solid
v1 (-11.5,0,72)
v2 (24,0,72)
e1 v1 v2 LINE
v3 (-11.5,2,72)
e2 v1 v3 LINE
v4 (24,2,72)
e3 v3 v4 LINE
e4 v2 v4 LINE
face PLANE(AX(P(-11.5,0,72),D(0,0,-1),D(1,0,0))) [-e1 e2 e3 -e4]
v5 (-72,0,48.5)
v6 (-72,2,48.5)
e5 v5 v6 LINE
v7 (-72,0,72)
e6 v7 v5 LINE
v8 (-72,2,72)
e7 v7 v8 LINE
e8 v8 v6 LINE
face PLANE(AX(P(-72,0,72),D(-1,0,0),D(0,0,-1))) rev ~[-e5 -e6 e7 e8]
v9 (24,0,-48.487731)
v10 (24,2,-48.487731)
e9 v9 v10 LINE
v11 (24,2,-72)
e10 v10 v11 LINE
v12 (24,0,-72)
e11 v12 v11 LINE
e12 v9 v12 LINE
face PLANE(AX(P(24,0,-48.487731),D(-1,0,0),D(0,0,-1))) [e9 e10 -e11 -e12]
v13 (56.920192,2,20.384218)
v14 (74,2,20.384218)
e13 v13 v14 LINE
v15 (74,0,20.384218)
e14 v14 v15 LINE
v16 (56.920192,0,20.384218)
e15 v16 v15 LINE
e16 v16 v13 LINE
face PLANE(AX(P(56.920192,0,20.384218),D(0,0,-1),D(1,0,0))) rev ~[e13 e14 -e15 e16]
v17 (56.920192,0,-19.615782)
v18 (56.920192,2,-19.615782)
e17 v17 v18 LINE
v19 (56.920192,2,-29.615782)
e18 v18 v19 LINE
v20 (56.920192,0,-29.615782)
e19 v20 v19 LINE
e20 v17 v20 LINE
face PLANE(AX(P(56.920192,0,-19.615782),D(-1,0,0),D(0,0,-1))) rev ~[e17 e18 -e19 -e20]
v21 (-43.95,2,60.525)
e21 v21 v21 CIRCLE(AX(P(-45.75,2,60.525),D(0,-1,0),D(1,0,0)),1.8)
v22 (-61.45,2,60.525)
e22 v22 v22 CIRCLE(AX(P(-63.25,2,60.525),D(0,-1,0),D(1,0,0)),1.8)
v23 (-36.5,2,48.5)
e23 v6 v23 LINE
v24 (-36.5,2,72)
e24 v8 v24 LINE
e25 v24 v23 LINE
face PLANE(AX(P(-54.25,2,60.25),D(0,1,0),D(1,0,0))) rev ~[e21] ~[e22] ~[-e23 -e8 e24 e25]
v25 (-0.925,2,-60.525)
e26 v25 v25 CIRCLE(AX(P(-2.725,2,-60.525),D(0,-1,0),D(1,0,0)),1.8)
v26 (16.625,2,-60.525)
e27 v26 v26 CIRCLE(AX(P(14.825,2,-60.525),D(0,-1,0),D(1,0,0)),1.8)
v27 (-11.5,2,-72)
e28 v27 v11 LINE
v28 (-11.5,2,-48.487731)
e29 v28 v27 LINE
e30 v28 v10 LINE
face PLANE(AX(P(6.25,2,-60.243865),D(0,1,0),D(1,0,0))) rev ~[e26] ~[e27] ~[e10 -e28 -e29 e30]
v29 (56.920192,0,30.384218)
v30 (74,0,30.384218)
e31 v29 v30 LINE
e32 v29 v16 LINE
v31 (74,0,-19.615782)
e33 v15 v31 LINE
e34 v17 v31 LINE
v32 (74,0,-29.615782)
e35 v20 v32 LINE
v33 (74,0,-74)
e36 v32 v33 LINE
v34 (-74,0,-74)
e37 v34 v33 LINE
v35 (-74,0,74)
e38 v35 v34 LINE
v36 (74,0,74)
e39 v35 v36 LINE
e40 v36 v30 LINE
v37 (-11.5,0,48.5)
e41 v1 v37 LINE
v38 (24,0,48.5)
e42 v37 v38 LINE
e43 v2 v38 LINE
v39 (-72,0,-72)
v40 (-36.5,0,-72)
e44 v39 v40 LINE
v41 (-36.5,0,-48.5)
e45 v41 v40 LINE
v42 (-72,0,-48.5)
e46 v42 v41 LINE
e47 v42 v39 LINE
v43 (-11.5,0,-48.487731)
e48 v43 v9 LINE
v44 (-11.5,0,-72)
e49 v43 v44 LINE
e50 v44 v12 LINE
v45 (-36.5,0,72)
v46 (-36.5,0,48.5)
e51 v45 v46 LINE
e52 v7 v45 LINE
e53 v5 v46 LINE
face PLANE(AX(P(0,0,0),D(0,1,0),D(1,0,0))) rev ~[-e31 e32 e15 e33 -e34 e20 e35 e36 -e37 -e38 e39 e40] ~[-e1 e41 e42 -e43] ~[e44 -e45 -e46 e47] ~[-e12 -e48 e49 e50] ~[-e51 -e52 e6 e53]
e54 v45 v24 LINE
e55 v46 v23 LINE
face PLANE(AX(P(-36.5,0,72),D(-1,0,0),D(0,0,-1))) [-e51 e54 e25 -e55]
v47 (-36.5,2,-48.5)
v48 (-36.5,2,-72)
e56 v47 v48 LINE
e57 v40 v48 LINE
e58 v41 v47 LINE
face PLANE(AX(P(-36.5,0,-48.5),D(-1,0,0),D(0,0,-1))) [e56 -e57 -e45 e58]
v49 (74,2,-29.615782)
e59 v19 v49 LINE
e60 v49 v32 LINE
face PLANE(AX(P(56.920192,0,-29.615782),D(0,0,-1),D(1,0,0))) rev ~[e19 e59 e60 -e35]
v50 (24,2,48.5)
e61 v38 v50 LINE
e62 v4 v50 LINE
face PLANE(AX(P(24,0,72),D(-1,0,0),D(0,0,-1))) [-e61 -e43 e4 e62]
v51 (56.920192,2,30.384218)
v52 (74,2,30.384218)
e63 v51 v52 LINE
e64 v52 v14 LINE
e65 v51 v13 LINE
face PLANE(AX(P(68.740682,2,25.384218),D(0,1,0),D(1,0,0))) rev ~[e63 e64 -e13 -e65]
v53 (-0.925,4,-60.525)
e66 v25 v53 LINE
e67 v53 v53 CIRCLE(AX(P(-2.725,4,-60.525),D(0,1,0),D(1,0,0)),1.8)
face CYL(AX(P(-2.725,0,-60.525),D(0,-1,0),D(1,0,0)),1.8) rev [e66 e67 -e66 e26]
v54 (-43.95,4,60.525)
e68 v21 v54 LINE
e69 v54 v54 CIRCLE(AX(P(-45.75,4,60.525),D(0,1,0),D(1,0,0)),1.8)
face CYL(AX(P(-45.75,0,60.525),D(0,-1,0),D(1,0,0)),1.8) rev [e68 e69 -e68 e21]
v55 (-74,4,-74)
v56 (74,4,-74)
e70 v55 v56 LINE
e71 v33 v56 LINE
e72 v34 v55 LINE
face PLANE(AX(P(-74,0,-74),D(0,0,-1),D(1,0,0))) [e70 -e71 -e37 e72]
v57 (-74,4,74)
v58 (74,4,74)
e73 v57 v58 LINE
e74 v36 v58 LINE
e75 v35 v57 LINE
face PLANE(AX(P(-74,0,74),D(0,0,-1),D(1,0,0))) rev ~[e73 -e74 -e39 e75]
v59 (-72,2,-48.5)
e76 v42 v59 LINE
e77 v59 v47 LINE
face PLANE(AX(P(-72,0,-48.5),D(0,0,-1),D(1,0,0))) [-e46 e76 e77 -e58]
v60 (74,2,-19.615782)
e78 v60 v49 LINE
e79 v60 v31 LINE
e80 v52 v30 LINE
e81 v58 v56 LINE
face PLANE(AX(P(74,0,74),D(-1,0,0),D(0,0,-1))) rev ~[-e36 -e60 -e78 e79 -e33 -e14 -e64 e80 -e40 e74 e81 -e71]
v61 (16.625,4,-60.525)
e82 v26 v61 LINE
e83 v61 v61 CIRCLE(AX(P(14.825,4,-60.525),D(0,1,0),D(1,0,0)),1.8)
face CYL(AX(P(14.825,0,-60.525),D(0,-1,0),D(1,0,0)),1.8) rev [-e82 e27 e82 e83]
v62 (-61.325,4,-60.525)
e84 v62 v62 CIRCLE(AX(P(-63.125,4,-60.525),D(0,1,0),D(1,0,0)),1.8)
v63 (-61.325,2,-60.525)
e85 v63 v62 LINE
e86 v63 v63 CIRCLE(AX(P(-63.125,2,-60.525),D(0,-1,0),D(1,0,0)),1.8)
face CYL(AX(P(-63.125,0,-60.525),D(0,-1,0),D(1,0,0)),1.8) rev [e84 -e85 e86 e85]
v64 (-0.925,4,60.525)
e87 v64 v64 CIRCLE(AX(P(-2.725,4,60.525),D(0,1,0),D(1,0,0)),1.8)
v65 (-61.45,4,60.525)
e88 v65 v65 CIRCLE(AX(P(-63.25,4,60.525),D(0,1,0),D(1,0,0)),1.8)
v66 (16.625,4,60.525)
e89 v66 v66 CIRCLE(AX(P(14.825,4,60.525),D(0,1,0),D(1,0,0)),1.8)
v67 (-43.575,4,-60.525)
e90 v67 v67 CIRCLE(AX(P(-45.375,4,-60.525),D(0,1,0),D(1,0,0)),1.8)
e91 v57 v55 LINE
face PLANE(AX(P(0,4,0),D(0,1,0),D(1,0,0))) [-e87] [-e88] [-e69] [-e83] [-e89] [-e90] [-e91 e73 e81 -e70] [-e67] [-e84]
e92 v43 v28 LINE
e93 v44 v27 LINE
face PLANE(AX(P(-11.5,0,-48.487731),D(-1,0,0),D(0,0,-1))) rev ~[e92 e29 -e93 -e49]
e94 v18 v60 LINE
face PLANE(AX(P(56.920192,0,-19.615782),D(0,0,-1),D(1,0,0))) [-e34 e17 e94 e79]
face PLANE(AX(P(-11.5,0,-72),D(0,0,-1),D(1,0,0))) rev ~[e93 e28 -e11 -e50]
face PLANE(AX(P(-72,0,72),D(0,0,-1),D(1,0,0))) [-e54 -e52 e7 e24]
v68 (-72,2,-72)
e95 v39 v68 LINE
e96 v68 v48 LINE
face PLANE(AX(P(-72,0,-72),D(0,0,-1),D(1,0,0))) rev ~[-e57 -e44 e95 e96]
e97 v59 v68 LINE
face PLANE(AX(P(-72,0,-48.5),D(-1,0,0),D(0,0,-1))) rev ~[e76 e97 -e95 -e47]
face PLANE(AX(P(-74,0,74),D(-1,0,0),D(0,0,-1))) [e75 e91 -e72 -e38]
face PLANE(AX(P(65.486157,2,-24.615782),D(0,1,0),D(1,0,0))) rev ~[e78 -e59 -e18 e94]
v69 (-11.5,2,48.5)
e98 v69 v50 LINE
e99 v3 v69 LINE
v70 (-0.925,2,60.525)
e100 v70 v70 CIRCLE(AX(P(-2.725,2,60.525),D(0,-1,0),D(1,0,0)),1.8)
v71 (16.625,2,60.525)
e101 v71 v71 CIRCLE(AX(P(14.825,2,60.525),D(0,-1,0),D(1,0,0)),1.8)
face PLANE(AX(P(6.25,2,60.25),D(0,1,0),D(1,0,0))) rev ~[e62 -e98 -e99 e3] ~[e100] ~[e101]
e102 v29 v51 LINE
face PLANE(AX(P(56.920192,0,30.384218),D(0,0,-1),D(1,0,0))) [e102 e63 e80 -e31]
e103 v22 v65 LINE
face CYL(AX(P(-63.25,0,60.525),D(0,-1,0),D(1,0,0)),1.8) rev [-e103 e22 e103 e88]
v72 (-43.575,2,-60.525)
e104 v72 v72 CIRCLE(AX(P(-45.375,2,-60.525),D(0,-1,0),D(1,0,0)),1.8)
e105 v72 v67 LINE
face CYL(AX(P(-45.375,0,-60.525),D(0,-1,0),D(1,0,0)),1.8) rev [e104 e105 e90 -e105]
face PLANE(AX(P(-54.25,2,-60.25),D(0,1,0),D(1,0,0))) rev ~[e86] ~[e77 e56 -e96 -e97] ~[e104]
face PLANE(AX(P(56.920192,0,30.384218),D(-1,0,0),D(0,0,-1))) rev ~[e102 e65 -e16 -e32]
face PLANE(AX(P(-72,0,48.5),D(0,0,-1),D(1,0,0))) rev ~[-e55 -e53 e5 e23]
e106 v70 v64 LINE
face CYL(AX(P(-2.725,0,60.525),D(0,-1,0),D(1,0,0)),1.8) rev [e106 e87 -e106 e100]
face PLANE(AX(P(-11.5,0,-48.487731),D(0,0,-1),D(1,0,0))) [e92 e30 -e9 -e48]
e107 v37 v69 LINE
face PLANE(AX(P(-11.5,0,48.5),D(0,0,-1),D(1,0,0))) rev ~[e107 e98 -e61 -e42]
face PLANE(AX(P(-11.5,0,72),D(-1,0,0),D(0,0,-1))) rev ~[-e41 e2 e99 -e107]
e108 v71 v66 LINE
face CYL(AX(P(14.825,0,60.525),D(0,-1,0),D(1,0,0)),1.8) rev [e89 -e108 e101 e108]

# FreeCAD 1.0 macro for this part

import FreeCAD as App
import Part
import Sketcher
from FreeCAD import Vector

doc = App.newDocument("Part")
body = doc.addObject("PartDesign::Body", "Body")

# Sketch on XZ plane
sketch1 = body.newObject("Sketcher::SketchObject", "Sketch")
sketch1.AttachmentSupport = (doc.getObject("XZ_Plane"), [""])
sketch1.MapMode = "FlatFace"
sketch1.addGeometry([
    Part.LineSegment(Vector(-74, -74, 0), Vector(-74, 74, 0)),
    Part.LineSegment(Vector(-74, 74, 0), Vector(74, 74, 0)),
    Part.LineSegment(Vector(74, 74, 0), Vector(74, -74, 0)),
    Part.LineSegment(Vector(74, -74, 0), Vector(-74, -74, 0)),
], False)
sketch1.addConstraint([
    Sketcher.Constraint("Coincident", 0, 2, 1, 1),
    Sketcher.Constraint("Coincident", 1, 2, 2, 1),
    Sketcher.Constraint("Coincident", 2, 2, 3, 1),
    Sketcher.Constraint("Coincident", 3, 2, 0, 1),
    Sketcher.Constraint("Vertical", 0),
    Sketcher.Constraint("Horizontal", 1),
    Sketcher.Constraint("Vertical", 2),
    Sketcher.Constraint("Horizontal", 3),
    Sketcher.Constraint("Symmetric", 0, 2, 2, 2, -1, 1),
    Sketcher.Constraint("Equal", 3, 0),
    Sketcher.Constraint("DistanceX", 1, 1, 1, 2, 148.0),
])
pad1 = body.newObject("PartDesign::Pad", "Pad")
pad1.Profile = sketch1
pad1.Length = 4
pad1.Reversed = True

# Sketch on XZ plane
sketch2 = body.newObject("Sketcher::SketchObject", "Sketch001")
sketch2.AttachmentSupport = (doc.getObject("XZ_Plane"), [""])
sketch2.MapMode = "FlatFace"
sketch2.addGeometry([
    Part.Circle(Vector(-63.25, 60.525, 0), Vector(0, 0, 1), 1.8),
    Part.Circle(Vector(-45.75, 60.525, 0), Vector(0, 0, 1), 1.8),
], False)
sketch2.addConstraint([
    Sketcher.Constraint("Equal", 0, 1),
    Sketcher.Constraint("Horizontal", 0, 3, 1, 3),
    Sketcher.Constraint("Diameter", 0, 3.6),
    Sketcher.Constraint("DistanceX", 0, 3, 1, 3, 17.5),
    Sketcher.Constraint("DistanceX", 0, 3, -1, 1, 63.25),
    Sketcher.Constraint("DistanceY", -1, 1, 0, 3, 60.525),
])
pocket1 = body.newObject("PartDesign::Pocket", "Pocket")
pocket1.Profile = sketch2
pocket1.Length = 4

# Sketch on XZ plane
sketch3 = body.newObject("Sketcher::SketchObject", "Sketch002")
sketch3.AttachmentSupport = (doc.getObject("XZ_Plane"), [""])
sketch3.MapMode = "FlatFace"
sketch3.addGeometry([
    Part.LineSegment(Vector(-72, 48.5, 0), Vector(-72, 72, 0)),
    Part.LineSegment(Vector(-72, 72, 0), Vector(-36.5, 72, 0)),
    Part.LineSegment(Vector(-36.5, 72, 0), Vector(-36.5, 48.5, 0)),
    Part.LineSegment(Vector(-36.5, 48.5, 0), Vector(-72, 48.5, 0)),
], False)
sketch3.addConstraint([
    Sketcher.Constraint("Coincident", 0, 2, 1, 1),
    Sketcher.Constraint("Coincident", 1, 2, 2, 1),
    Sketcher.Constraint("Coincident", 2, 2, 3, 1),
    Sketcher.Constraint("Coincident", 3, 2, 0, 1),
    Sketcher.Constraint("Vertical", 0),
    Sketcher.Constraint("Horizontal", 1),
    Sketcher.Constraint("Vertical", 2),
    Sketcher.Constraint("Horizontal", 3),
    Sketcher.Constraint("DistanceX", 1, 1, 1, 2, 35.5),
    Sketcher.Constraint("DistanceY", 0, 1, 0, 2, 23.5),
    Sketcher.Constraint("DistanceX", 0, 2, -1, 1, 72.0),
    Sketcher.Constraint("DistanceY", -1, 1, 0, 2, 72.0),
])
pocket2 = body.newObject("PartDesign::Pocket", "Pocket001")
pocket2.Profile = sketch3
pocket2.Length = 2

# Sketch on XZ plane
sketch4 = body.newObject("Sketcher::SketchObject", "Sketch003")
sketch4.AttachmentSupport = (doc.getObject("XZ_Plane"), [""])
sketch4.MapMode = "FlatFace"
sketch4.addGeometry([
    Part.Circle(Vector(-2.725, 60.525, 0), Vector(0, 0, 1), 1.8),
    Part.Circle(Vector(14.825, 60.525, 0), Vector(0, 0, 1), 1.8),
], False)
sketch4.addConstraint([
    Sketcher.Constraint("Equal", 0, 1),
    Sketcher.Constraint("Horizontal", 0, 3, 1, 3),
    Sketcher.Constraint("Diameter", 0, 3.6),
    Sketcher.Constraint("DistanceX", 0, 3, 1, 3, 17.55),
    Sketcher.Constraint("DistanceX", 0, 3, -1, 1, 2.725),
    Sketcher.Constraint("DistanceY", -1, 1, 0, 3, 60.525),
])
pocket3 = body.newObject("PartDesign::Pocket", "Pocket002")
pocket3.Profile = sketch4
pocket3.Length = 4

# Sketch on XZ plane
sketch5 = body.newObject("Sketcher::SketchObject", "Sketch004")
sketch5.AttachmentSupport = (doc.getObject("XZ_Plane"), [""])
sketch5.MapMode = "FlatFace"
sketch5.addGeometry([
    Part.LineSegment(Vector(-11.5, 48.5, 0), Vector(-11.5, 72, 0)),
    Part.LineSegment(Vector(-11.5, 72, 0), Vector(24, 72, 0)),
    Part.LineSegment(Vector(24, 72, 0), Vector(24, 48.5, 0)),
    Part.LineSegment(Vector(24, 48.5, 0), Vector(-11.5, 48.5, 0)),
], False)
sketch5.addConstraint([
    Sketcher.Constraint("Coincident", 0, 2, 1, 1),
    Sketcher.Constraint("Coincident", 1, 2, 2, 1),
    Sketcher.Constraint("Coincident", 2, 2, 3, 1),
    Sketcher.Constraint("Coincident", 3, 2, 0, 1),
    Sketcher.Constraint("Vertical", 0),
    Sketcher.Constraint("Horizontal", 1),
    Sketcher.Constraint("Vertical", 2),
    Sketcher.Constraint("Horizontal", 3),
    Sketcher.Constraint("DistanceX", 1, 1, 1, 2, 35.5),
    Sketcher.Constraint("DistanceY", 0, 1, 0, 2, 23.5),
    Sketcher.Constraint("DistanceY", -1, 1, 0, 2, 72.0),
    Sketcher.Constraint("DistanceX", -1, 1, 1, 2, 24.0),
])
pocket4 = body.newObject("PartDesign::Pocket", "Pocket003")
pocket4.Profile = sketch5
pocket4.Length = 2

# Sketch on XZ plane
sketch6 = body.newObject("Sketcher::SketchObject", "Sketch005")
sketch6.AttachmentSupport = (doc.getObject("XZ_Plane"), [""])
sketch6.MapMode = "FlatFace"
sketch6.addGeometry([
    Part.Circle(Vector(-2.725, -60.525, 0), Vector(0, 0, 1), 1.8),
    Part.Circle(Vector(14.825, -60.525, 0), Vector(0, 0, 1), 1.8),
    Part.Circle(Vector(-63.125, -60.525, 0), Vector(0, 0, 1), 1.8),
    Part.Circle(Vector(-45.375, -60.525, 0), Vector(0, 0, 1), 1.8),
], False)
sketch6.addConstraint([
    Sketcher.Constraint("Equal", 0, 1),
    Sketcher.Constraint("Equal", 1, 2),
    Sketcher.Constraint("Equal", 2, 3),
    Sketcher.Constraint("Horizontal", 0, 3, 1, 3),
    Sketcher.Constraint("Horizontal", 1, 3, 2, 3),
    Sketcher.Constraint("Horizontal", 2, 3, 3, 3),
    Sketcher.Constraint("Diameter", 0, 3.6),
    Sketcher.Constraint("DistanceX", 2, 3, 0, 3, 60.4),
    Sketcher.Constraint("DistanceX", 3, 3, 1, 3, 60.2),
    Sketcher.Constraint("DistanceX", 0, 3, 1, 3, 17.55),
    Sketcher.Constraint("DistanceX", 0, 3, -1, 1, 2.725),
    Sketcher.Constraint("DistanceY", 0, 3, -1, 1, 60.525),
])
pocket5 = body.newObject("PartDesign::Pocket", "Pocket004")
pocket5.Profile = sketch6
pocket5.Length = 4

# Sketch on XZ plane
sketch7 = body.newObject("Sketcher::SketchObject", "Sketch006")
sketch7.AttachmentSupport = (doc.getObject("XZ_Plane"), [""])
sketch7.MapMode = "FlatFace"
sketch7.addGeometry([
    Part.LineSegment(Vector(-72, -72, 0), Vector(-72, -48.5, 0)),  # 0
    Part.LineSegment(Vector(-72, -48.5, 0), Vector(-36.5, -48.5, 0)),  # 1
    Part.LineSegment(Vector(-36.5, -48.5, 0), Vector(-36.5, -72, 0)),  # 2
    Part.LineSegment(Vector(-36.5, -72, 0), Vector(-72, -72, 0)),  # 3
    Part.LineSegment(Vector(-11.5, -72, 0), Vector(-11.5, -48.487731, 0)),  # 4
    Part.LineSegment(Vector(-11.5, -48.487731, 0), Vector(24, -48.487731, 0)),  # 5
    Part.LineSegment(Vector(24, -48.487731, 0), Vector(24, -72, 0)),  # 6
    Part.LineSegment(Vector(24, -72, 0), Vector(-11.5, -72, 0)),  # 7
], False)
sketch7.addConstraint([
    Sketcher.Constraint("Coincident", 0, 2, 1, 1),
    Sketcher.Constraint("Coincident", 1, 2, 2, 1),
    Sketcher.Constraint("Coincident", 2, 2, 3, 1),
    Sketcher.Constraint("Coincident", 3, 2, 0, 1),
    Sketcher.Constraint("Coincident", 4, 2, 5, 1),
    Sketcher.Constraint("Coincident", 5, 2, 6, 1),
    Sketcher.Constraint("Coincident", 6, 2, 7, 1),
    Sketcher.Constraint("Coincident", 7, 2, 4, 1),
    Sketcher.Constraint("Vertical", 0),
    Sketcher.Constraint("Horizontal", 1),
    Sketcher.Constraint("Vertical", 2),
    Sketcher.Constraint("Horizontal", 3),
    Sketcher.Constraint("Vertical", 4),
    Sketcher.Constraint("Horizontal", 5),
    Sketcher.Constraint("Vertical", 6),
    Sketcher.Constraint("Horizontal", 7),
    Sketcher.Constraint("Horizontal", 3, 2, 6, 2),
    Sketcher.Constraint("Equal", 3, 5),
    Sketcher.Constraint("DistanceX", 1, 1, 1, 2, 35.5),
    Sketcher.Constraint("DistanceY", 0, 1, 0, 2, 23.5),
    Sketcher.Constraint("DistanceX", 0, 2, -1, 1, 72.0),
    Sketcher.Constraint("DistanceY", 2, 2, -1, 1, 72.0),
    Sketcher.Constraint("DistanceX", -1, 1, 5, 2, 24.0),
    Sketcher.Constraint("DistanceY", 4, 1, 4, 2, 23.512269),
])
pocket6 = body.newObject("PartDesign::Pocket", "Pocket005")
pocket6.Profile = sketch7
pocket6.Length = 2

# Sketch on XZ plane
sketch8 = body.newObject("Sketcher::SketchObject", "Sketch007")
sketch8.AttachmentSupport = (doc.getObject("XZ_Plane"), [""])
sketch8.MapMode = "FlatFace"
sketch8.addGeometry([
    Part.LineSegment(Vector(56.920192, 20.384218, 0), Vector(56.920192, 30.384218, 0)),  # 0
    Part.LineSegment(Vector(56.920192, 30.384218, 0), Vector(80.561173, 30.384218, 0)),  # 1
    Part.LineSegment(Vector(80.561173, 30.384218, 0), Vector(80.561173, 20.384218, 0)),  # 2
    Part.LineSegment(Vector(80.561173, 20.384218, 0), Vector(56.920192, 20.384218, 0)),  # 3
    Part.LineSegment(Vector(56.920192, -29.615782, 0), Vector(56.920192, -19.615782, 0)),  # 4
    Part.LineSegment(Vector(56.920192, -19.615782, 0), Vector(74.052123, -19.615782, 0)),  # 5
    Part.LineSegment(Vector(74.052123, -19.615782, 0), Vector(74.052123, -29.615782, 0)),  # 6
    Part.LineSegment(Vector(74.052123, -29.615782, 0), Vector(56.920192, -29.615782, 0)),  # 7
], False)
sketch8.addConstraint([
    Sketcher.Constraint("Coincident", 0, 2, 1, 1),
    Sketcher.Constraint("Coincident", 1, 2, 2, 1),
    Sketcher.Constraint("Coincident", 2, 2, 3, 1),
    Sketcher.Constraint("Coincident", 3, 2, 0, 1),
    Sketcher.Constraint("Coincident", 4, 2, 5, 1),
    Sketcher.Constraint("Coincident", 5, 2, 6, 1),
    Sketcher.Constraint("Coincident", 6, 2, 7, 1),
    Sketcher.Constraint("Coincident", 7, 2, 4, 1),
    Sketcher.Constraint("Vertical", 0),
    Sketcher.Constraint("Horizontal", 1),
    Sketcher.Constraint("Vertical", 2),
    Sketcher.Constraint("Horizontal", 3),
    Sketcher.Constraint("Vertical", 4),
    Sketcher.Constraint("Horizontal", 5),
    Sketcher.Constraint("Vertical", 6),
    Sketcher.Constraint("Horizontal", 7),
    Sketcher.Constraint("Vertical", 3, 2, 4, 2),
    Sketcher.Constraint("Equal", 2, 4),
    Sketcher.Constraint("DistanceY", 0, 1, 0, 2, 10.0),
    Sketcher.Constraint("DistanceY", 4, 2, 3, 2, 40.0),
    Sketcher.Constraint("DistanceX", 1, 1, 1, 2, 23.640981),
    Sketcher.Constraint("DistanceX", 5, 1, 5, 2, 17.131931),
    Sketcher.Constraint("DistanceX", -1, 1, 0, 2, 56.920192),
    Sketcher.Constraint("DistanceY", -1, 1, 0, 2, 30.384218),
])
pocket7 = body.newObject("PartDesign::Pocket", "Pocket006")
pocket7.Profile = sketch8
pocket7.Length = 2

doc.recompute()
